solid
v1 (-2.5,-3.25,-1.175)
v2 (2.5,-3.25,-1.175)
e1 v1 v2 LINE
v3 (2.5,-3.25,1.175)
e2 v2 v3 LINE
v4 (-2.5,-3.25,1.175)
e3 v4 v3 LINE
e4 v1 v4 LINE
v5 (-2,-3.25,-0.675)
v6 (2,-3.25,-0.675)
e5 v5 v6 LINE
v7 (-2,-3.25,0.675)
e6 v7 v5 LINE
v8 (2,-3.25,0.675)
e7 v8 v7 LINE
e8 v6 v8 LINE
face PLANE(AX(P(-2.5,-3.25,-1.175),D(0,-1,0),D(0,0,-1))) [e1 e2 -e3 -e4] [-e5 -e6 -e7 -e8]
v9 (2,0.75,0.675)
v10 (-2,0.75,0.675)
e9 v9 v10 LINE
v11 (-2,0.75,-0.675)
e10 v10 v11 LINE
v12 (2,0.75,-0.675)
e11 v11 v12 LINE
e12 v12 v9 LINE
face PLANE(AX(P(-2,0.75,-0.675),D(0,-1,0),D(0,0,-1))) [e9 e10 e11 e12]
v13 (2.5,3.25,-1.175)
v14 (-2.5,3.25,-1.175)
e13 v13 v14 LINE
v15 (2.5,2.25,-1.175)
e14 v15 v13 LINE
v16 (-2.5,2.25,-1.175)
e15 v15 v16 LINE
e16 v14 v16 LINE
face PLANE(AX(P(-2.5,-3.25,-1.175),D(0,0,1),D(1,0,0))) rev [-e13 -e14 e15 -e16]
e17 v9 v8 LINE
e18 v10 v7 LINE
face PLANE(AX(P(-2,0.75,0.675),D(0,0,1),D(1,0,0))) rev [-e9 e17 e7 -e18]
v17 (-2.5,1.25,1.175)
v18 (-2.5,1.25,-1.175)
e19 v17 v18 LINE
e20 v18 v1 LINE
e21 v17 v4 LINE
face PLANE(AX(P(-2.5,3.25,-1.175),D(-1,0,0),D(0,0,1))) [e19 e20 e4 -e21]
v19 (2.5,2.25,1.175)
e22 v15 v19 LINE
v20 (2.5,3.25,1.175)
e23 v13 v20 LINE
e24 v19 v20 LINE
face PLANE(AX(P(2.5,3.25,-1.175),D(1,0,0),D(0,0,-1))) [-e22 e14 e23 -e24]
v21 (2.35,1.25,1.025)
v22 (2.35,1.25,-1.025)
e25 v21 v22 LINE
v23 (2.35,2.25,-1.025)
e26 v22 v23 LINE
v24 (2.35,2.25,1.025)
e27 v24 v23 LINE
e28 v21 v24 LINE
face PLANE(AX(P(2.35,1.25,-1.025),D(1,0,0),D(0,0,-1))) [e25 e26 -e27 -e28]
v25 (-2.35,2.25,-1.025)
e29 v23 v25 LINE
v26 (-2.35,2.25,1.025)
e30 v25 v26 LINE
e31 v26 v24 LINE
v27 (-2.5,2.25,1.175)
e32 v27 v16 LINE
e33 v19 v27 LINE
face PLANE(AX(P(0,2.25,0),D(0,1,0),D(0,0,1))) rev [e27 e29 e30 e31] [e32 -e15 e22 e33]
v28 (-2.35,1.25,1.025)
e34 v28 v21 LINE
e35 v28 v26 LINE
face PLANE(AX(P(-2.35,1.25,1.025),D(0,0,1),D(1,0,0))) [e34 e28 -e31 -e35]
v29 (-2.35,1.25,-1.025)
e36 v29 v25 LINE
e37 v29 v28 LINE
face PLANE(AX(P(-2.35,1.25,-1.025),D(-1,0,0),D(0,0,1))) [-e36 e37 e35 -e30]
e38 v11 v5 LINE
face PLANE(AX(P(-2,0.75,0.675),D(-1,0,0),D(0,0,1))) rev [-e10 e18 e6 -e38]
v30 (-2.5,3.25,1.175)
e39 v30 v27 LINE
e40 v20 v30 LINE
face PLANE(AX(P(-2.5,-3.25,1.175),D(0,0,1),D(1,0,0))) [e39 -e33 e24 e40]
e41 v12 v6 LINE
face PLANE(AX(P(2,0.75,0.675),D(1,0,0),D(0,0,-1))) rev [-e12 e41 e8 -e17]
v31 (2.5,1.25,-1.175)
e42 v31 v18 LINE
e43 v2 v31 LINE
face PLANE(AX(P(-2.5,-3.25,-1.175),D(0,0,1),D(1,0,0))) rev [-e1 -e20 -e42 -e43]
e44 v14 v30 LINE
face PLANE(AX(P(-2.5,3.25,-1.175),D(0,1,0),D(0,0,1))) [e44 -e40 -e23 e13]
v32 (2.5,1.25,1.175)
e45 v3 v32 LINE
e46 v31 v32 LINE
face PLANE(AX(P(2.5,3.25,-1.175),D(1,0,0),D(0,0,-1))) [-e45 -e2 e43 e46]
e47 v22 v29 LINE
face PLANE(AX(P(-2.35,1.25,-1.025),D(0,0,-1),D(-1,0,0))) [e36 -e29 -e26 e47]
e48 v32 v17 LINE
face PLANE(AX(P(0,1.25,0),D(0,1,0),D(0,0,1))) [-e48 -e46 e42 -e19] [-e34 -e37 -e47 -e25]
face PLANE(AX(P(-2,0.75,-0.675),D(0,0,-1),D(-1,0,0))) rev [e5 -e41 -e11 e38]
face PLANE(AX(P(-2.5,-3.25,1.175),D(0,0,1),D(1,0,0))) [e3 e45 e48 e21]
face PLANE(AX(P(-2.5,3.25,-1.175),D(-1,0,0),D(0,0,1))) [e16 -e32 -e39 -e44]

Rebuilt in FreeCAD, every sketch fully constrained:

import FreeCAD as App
import Part
import Sketcher
from FreeCAD import Vector

doc = App.newDocument("Part")
body = doc.addObject("PartDesign::Body", "Body")

# Sketch on XY plane
sketch1 = body.newObject("Sketcher::SketchObject", "Sketch")
sketch1.AttachmentSupport = (doc.getObject("XY_Plane"), [""])
sketch1.MapMode = "FlatFace"
sketch1.addGeometry([
    Part.LineSegment(Vector(-2, 3, 0), Vector(-2, -3, 0)),
    Part.LineSegment(Vector(-2, -3, 0), Vector(2, -3, 0)),
    Part.LineSegment(Vector(2, -3, 0), Vector(2, 3, 0)),
    Part.LineSegment(Vector(2, 3, 0), Vector(-2, 3, 0)),
], False)
sketch1.addConstraint([
    Sketcher.Constraint("Coincident", 0, 2, 1, 1),
    Sketcher.Constraint("Coincident", 1, 2, 2, 1),
    Sketcher.Constraint("Coincident", 2, 2, 3, 1),
    Sketcher.Constraint("Coincident", 3, 2, 0, 1),
    Sketcher.Constraint("Vertical", 0),
    Sketcher.Constraint("Horizontal", 1),
    Sketcher.Constraint("Vertical", 2),
    Sketcher.Constraint("Horizontal", 3),
    Sketcher.Constraint("Symmetric", 0, 2, 2, 2, -1, 1),
    Sketcher.Constraint("DistanceX", 1, 1, 1, 2, 5.0),
    Sketcher.Constraint("DistanceY", 0, 2, 0, 1, 6.5),
])
pad1 = body.newObject("PartDesign::Pad", "Pad")
pad1.Profile = sketch1
pad1.Type = "TwoLengths"
pad1.Length = 1.175
pad1.Length2 = 1.175

# Sketch on XZ plane
sketch2 = body.newObject("Sketcher::SketchObject", "Sketch001")
sketch2.AttachmentSupport = (doc.getObject("XZ_Plane"), [""])
sketch2.MapMode = "FlatFace"
sketch2.AttachmentOffset = App.Placement(Vector(0, 0, -2.25), App.Rotation())
sketch2.addGeometry([
    Part.LineSegment(Vector(-4.4, -3, 0), Vector(-4.4, 3, 0)),  # 0
    Part.LineSegment(Vector(-4.4, 3, 0), Vector(4.4, 3, 0)),  # 1
    Part.LineSegment(Vector(4.4, 3, 0), Vector(4.4, -3, 0)),  # 2
    Part.LineSegment(Vector(4.4, -3, 0), Vector(-4.4, -3, 0)),  # 3
    Part.LineSegment(Vector(2.4, 1, 0), Vector(-2.4, 1, 0)),  # 4
    Part.LineSegment(Vector(-2.4, 1, 0), Vector(-2.4, -1, 0)),  # 5
    Part.LineSegment(Vector(-2.4, -1, 0), Vector(2.4, -1, 0)),  # 6
    Part.LineSegment(Vector(2.4, -1, 0), Vector(2.4, 1, 0)),  # 7
], False)
sketch2.addConstraint([
    Sketcher.Constraint("Coincident", 0, 2, 1, 1),
    Sketcher.Constraint("Coincident", 1, 2, 2, 1),
    Sketcher.Constraint("Coincident", 2, 2, 3, 1),
    Sketcher.Constraint("Coincident", 3, 2, 0, 1),
    Sketcher.Constraint("Coincident", 4, 2, 5, 1),
    Sketcher.Constraint("Coincident", 5, 2, 6, 1),
    Sketcher.Constraint("Coincident", 6, 2, 7, 1),
    Sketcher.Constraint("Coincident", 7, 2, 4, 1),
    Sketcher.Constraint("Vertical", 0),
    Sketcher.Constraint("Horizontal", 1),
    Sketcher.Constraint("Vertical", 2),
    Sketcher.Constraint("Horizontal", 3),
    Sketcher.Constraint("Horizontal", 4),
    Sketcher.Constraint("Vertical", 5),
    Sketcher.Constraint("Horizontal", 6),
    Sketcher.Constraint("Vertical", 7),
    Sketcher.Constraint("Symmetric", 0, 2, 2, 2, -1, 1),
    Sketcher.Constraint("Symmetric", 4, 2, 6, 2, -1, 1),
    Sketcher.Constraint("DistanceX", 4, 2, 4, 1, 4.7),
    Sketcher.Constraint("DistanceY", 5, 2, 5, 1, 2.05),
    Sketcher.Constraint("DistanceX", 1, 1, 1, 2, 8.706),
    Sketcher.Constraint("DistanceY", 0, 1, 0, 2, 6.056),
])
pocket1 = body.newObject("PartDesign::Pocket", "Pocket")
pocket1.Profile = sketch2
pocket1.Length = 1
pocket1.Reversed = True

# Sketch on XZ plane
sketch3 = body.newObject("Sketcher::SketchObject", "Sketch002")
sketch3.AttachmentSupport = (doc.getObject("XZ_Plane"), [""])
sketch3.MapMode = "FlatFace"
sketch3.AttachmentOffset = App.Placement(Vector(0, 0, 3.25), App.Rotation())
sketch3.addGeometry([
    Part.LineSegment(Vector(-2, 0.7, 0), Vector(-2, -0.7, 0)),
    Part.LineSegment(Vector(-2, -0.7, 0), Vector(2, -0.7, 0)),
    Part.LineSegment(Vector(2, -0.7, 0), Vector(2, 0.7, 0)),
    Part.LineSegment(Vector(2, 0.7, 0), Vector(-2, 0.7, 0)),
], False)
sketch3.addConstraint([
    Sketcher.Constraint("Coincident", 0, 2, 1, 1),
    Sketcher.Constraint("Coincident", 1, 2, 2, 1),
    Sketcher.Constraint("Coincident", 2, 2, 3, 1),
    Sketcher.Constraint("Coincident", 3, 2, 0, 1),
    Sketcher.Constraint("Vertical", 0),
    Sketcher.Constraint("Horizontal", 1),
    Sketcher.Constraint("Vertical", 2),
    Sketcher.Constraint("Horizontal", 3),
    Sketcher.Constraint("Symmetric", 0, 2, 2, 2, -1, 1),
    Sketcher.Constraint("DistanceX", 1, 1, 1, 2, 4.0),
    Sketcher.Constraint("DistanceY", 0, 2, 0, 1, 1.35),
])
pocket2 = body.newObject("PartDesign::Pocket", "Pocket001")
pocket2.Profile = sketch3
pocket2.Length = 4

doc.recompute()
